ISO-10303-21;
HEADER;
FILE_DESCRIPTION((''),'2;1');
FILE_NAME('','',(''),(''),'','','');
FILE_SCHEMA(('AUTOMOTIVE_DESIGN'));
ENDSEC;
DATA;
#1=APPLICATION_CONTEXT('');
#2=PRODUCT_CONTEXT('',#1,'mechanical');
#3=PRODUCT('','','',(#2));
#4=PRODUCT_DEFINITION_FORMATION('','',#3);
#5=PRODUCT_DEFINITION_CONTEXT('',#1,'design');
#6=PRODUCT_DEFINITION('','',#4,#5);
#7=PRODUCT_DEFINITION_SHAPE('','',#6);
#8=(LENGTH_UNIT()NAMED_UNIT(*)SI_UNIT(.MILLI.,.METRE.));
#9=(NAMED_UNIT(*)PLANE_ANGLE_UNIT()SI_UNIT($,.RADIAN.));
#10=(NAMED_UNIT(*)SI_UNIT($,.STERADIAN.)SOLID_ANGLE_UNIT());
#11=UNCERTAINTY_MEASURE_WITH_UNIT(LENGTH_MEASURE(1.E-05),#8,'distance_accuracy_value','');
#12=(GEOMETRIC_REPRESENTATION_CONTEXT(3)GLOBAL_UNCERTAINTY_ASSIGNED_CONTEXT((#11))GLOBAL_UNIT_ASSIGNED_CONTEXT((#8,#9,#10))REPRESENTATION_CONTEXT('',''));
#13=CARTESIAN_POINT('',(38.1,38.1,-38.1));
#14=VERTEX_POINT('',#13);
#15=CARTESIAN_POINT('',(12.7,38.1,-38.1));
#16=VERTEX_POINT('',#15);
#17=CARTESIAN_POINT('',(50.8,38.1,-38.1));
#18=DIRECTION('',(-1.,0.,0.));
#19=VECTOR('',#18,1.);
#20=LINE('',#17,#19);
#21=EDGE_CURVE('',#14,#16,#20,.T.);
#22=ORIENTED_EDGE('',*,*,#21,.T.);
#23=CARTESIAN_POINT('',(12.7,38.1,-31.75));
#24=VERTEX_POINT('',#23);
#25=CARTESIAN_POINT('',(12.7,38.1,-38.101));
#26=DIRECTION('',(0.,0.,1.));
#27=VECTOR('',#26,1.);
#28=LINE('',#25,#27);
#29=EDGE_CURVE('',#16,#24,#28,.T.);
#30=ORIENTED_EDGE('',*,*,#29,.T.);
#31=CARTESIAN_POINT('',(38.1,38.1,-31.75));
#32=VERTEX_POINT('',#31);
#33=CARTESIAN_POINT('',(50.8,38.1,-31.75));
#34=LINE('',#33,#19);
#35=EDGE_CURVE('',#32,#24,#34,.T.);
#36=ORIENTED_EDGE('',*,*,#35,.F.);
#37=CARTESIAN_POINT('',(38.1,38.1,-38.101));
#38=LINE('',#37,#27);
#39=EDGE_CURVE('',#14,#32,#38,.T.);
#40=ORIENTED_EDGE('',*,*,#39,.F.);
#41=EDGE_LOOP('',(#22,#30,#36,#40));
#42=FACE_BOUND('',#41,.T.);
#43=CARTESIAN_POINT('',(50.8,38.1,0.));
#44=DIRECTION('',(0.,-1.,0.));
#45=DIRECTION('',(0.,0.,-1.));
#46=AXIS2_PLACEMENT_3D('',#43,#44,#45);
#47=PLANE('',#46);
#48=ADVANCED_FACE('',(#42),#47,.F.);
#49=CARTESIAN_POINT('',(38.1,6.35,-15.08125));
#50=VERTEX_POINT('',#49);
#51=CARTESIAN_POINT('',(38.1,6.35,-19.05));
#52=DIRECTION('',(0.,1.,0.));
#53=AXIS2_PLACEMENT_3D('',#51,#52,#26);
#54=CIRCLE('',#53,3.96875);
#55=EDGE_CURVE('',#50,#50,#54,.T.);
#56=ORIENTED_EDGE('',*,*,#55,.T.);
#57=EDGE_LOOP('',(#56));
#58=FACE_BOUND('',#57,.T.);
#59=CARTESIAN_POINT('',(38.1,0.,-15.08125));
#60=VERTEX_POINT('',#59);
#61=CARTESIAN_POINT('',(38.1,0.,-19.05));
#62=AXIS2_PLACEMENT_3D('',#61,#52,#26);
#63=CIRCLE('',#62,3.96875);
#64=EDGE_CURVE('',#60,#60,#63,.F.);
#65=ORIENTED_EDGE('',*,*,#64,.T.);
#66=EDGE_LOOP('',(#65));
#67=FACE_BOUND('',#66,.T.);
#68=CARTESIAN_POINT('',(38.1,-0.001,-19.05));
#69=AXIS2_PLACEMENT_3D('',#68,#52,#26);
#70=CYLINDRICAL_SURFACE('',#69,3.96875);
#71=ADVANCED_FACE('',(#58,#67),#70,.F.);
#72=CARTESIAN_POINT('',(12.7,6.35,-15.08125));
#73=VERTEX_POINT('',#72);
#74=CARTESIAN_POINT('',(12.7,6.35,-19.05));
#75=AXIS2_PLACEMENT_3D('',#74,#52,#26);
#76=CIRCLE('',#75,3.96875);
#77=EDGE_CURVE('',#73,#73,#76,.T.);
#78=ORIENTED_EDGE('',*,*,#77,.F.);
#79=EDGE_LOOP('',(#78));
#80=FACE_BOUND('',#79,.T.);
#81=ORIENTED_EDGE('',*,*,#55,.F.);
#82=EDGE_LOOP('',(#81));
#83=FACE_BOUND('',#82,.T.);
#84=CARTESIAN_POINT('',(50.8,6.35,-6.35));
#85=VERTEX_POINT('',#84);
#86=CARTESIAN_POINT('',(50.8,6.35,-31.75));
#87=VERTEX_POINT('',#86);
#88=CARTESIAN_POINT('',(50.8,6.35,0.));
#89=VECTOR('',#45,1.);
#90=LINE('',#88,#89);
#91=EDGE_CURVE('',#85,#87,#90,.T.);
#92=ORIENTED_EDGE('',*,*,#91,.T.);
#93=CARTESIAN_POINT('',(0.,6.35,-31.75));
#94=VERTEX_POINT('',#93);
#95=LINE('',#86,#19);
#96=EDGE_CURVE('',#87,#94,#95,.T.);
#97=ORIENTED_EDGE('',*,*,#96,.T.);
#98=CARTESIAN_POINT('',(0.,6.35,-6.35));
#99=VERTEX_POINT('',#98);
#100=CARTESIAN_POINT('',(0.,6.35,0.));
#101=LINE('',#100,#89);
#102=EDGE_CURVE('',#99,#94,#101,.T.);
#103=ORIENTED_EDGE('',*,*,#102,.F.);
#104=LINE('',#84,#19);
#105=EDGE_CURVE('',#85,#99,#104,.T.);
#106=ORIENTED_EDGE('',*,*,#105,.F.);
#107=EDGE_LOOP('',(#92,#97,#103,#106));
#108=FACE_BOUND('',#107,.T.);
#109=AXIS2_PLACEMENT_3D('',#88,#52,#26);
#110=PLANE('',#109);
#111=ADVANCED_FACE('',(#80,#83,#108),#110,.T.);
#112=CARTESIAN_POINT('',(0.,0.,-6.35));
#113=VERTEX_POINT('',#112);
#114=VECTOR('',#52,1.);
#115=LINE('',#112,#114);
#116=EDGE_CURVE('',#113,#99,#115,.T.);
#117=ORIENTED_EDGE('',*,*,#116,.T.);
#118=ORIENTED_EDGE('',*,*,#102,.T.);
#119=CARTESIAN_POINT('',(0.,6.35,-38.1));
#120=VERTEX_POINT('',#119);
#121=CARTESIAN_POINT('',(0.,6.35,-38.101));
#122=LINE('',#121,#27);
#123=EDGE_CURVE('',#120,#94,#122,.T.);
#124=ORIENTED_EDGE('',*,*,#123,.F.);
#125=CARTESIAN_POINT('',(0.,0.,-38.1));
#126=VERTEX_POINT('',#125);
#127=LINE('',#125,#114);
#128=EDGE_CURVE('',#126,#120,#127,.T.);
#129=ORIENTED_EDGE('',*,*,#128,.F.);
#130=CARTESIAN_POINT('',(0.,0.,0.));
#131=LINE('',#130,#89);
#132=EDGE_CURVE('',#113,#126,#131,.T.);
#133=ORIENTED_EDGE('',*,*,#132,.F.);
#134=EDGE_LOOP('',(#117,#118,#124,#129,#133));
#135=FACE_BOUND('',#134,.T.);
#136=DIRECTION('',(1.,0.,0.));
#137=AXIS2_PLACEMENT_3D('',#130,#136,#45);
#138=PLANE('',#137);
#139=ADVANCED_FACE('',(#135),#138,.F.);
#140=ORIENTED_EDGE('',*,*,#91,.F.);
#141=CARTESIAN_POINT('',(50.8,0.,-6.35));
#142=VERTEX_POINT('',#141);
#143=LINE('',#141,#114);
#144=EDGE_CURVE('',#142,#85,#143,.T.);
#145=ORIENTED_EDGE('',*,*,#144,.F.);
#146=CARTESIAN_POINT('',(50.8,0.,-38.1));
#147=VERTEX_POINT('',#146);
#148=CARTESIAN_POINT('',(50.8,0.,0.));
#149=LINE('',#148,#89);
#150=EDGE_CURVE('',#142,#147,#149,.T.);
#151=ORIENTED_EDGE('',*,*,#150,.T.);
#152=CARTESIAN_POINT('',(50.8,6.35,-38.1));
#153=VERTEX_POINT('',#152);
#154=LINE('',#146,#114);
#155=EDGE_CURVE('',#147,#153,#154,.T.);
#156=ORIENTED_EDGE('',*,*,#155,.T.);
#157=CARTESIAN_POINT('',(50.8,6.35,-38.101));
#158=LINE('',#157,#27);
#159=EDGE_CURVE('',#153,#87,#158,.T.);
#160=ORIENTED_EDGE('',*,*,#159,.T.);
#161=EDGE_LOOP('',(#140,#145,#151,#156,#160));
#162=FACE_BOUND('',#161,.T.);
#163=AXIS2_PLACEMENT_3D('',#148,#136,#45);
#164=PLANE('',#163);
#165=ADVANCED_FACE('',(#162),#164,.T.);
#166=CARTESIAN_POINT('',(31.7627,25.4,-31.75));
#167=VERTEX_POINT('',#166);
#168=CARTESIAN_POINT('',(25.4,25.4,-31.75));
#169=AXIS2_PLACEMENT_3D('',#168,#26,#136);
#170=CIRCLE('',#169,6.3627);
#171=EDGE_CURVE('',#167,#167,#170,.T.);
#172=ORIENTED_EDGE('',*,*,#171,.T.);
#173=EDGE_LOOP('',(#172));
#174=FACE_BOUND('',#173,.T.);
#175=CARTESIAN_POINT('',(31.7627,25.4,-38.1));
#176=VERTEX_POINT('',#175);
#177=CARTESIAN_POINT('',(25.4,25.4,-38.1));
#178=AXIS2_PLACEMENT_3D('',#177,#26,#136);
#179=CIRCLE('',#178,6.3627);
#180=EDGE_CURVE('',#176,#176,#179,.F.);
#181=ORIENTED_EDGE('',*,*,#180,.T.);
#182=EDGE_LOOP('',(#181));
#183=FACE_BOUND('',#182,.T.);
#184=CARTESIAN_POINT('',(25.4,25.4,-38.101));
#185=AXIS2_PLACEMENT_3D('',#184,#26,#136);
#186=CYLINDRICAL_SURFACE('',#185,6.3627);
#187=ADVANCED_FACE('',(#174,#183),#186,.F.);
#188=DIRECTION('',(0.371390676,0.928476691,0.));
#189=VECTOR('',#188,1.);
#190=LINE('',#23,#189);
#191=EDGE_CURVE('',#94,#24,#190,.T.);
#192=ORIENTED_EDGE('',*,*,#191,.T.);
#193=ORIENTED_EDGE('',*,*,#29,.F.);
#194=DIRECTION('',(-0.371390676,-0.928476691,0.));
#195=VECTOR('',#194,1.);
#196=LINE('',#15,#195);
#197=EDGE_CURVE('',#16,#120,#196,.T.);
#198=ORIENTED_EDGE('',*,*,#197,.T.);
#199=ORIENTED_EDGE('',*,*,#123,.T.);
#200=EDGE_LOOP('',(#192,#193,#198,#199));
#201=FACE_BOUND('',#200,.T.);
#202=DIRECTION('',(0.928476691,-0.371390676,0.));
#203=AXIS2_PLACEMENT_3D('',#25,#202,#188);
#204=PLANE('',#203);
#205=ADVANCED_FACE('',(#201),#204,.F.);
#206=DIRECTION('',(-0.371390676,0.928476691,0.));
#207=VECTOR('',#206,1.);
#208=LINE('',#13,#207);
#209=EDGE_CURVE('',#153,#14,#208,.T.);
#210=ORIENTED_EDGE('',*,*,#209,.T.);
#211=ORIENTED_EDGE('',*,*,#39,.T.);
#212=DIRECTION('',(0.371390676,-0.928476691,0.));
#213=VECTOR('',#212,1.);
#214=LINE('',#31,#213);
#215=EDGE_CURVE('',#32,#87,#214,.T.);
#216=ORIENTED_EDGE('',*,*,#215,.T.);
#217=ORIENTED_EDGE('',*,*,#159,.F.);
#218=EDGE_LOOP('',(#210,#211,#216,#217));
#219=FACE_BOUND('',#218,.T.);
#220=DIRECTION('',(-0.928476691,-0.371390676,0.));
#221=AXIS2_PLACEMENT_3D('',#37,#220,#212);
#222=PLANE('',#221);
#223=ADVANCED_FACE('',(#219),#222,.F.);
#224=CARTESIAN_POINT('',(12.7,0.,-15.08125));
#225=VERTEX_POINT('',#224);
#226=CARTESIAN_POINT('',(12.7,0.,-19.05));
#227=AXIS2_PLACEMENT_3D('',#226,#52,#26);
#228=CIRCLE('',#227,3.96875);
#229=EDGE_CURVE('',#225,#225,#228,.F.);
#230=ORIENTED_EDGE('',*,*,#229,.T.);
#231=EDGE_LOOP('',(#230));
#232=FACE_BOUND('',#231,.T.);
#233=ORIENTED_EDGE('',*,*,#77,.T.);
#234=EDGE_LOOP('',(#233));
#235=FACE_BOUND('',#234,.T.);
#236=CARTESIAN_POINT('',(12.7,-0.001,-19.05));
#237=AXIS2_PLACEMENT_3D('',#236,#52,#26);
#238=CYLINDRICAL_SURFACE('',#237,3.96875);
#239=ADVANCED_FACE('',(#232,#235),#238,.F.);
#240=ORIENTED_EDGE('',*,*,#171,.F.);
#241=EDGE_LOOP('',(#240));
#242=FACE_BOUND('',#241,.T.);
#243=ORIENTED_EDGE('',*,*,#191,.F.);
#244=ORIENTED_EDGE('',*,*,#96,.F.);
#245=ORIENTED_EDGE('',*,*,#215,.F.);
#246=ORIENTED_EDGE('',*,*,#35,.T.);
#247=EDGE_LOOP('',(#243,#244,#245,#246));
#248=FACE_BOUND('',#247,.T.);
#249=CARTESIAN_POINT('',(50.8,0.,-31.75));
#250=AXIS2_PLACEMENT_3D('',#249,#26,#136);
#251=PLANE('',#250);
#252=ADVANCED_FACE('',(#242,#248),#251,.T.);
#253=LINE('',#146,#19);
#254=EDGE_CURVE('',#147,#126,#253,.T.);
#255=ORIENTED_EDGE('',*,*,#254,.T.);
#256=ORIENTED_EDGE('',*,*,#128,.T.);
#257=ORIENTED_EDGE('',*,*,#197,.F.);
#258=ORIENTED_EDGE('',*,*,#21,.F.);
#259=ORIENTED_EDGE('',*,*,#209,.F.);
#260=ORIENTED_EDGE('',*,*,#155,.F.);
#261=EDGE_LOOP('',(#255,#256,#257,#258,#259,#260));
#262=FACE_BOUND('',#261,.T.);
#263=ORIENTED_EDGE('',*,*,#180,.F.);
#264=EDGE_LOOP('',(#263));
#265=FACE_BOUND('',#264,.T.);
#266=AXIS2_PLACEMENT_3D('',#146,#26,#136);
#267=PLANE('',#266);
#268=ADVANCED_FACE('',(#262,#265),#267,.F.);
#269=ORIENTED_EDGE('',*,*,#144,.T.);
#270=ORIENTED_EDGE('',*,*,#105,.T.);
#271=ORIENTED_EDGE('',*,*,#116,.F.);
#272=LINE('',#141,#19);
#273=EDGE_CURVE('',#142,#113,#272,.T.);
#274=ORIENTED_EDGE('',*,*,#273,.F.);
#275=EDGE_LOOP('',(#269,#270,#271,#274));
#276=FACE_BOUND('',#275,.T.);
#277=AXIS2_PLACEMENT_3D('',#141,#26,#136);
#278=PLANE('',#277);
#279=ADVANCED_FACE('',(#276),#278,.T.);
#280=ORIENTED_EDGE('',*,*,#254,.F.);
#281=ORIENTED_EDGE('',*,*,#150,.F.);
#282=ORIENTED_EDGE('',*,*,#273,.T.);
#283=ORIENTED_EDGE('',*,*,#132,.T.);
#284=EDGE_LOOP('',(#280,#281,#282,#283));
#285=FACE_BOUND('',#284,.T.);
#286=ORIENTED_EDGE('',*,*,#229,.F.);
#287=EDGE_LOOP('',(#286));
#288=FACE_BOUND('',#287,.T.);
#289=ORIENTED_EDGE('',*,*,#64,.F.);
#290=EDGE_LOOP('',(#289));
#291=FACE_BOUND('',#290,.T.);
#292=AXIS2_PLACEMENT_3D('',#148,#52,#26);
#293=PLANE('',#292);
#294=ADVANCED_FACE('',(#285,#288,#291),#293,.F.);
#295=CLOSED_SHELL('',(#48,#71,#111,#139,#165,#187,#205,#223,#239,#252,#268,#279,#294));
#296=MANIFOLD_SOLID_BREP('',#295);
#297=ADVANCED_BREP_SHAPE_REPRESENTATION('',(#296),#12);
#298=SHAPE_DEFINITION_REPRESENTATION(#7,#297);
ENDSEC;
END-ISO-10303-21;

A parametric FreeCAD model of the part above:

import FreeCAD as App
import Part
import Sketcher
from FreeCAD import Vector
Q = App.Units.Quantity

doc = App.newDocument("Part")
body = doc.addObject("PartDesign::Body", "Body")

# Sketch on YZ plane
sketch1 = doc.addObject("Sketcher::SketchObject", "Sketch")
body.addObject(sketch1)
sketch1.AttachmentSupport = (doc.YZ_Plane, [""])
sketch1.MapMode = "FlatFace"
sketch1.addGeometry([
    Part.LineSegment(Vector(6, -6, 0), Vector(0, -6, 0)),  # 0
    Part.LineSegment(Vector(0, -6, 0), Vector(0, -38, 0)),  # 1
    Part.LineSegment(Vector(0, -38, 0), Vector(38, -38, 0)),  # 2
    Part.LineSegment(Vector(38, -38, 0), Vector(38, -32, 0)),  # 3
    Part.LineSegment(Vector(38, -32, 0), Vector(6, -32, 0)),  # 4
    Part.LineSegment(Vector(6, -32, 0), Vector(6, -6, 0)),  # 5
], False)
sketch1.addConstraint([
    Sketcher.Constraint("Coincident", 0, 2, 1, 1),
    Sketcher.Constraint("Coincident", 1, 2, 2, 1),
    Sketcher.Constraint("Coincident", 2, 2, 3, 1),
    Sketcher.Constraint("Coincident", 3, 2, 4, 1),
    Sketcher.Constraint("Coincident", 4, 2, 5, 1),
    Sketcher.Constraint("Coincident", 5, 2, 0, 1),
    Sketcher.Constraint("Horizontal", 0),
    Sketcher.Constraint("Vertical", 1),
    Sketcher.Constraint("Horizontal", 2),
    Sketcher.Constraint("Vertical", 3),
    Sketcher.Constraint("Horizontal", 4),
    Sketcher.Constraint("Vertical", 5),
    Sketcher.Constraint("PointOnObject", 0, 2, -2),
    Sketcher.Constraint("Equal", 4, 1),
    Sketcher.Constraint("Equal", 0, 3),
    Sketcher.Constraint("DistanceY", 5, 1, 5, 2, Q("1 in")),
    Sketcher.Constraint("DistanceX", 2, 1, 2, 2, Q("1.5 in")),
    Sketcher.Constraint("DistanceY", 1, 2, -1, 1, Q("1.5 in")),
])
pad1 = doc.addObject("PartDesign::Pad", "Pad")
body.addObject(pad1)
pad1.Profile = sketch1
pad1.Length = Q("2 in")

# Sketch on XZ plane
sketch2 = doc.addObject("Sketcher::SketchObject", "Sketch001")
body.addObject(sketch2)
sketch2.AttachmentSupport = (doc.XZ_Plane, [""])
sketch2.MapMode = "FlatFace"
sketch2.AttachmentOffset = App.Placement(Vector(0, 0, -0.25 * 25.4), App.Rotation())
sketch2.addGeometry(Part.Circle(Vector(38.1, -19.1, 0), Vector(0, 0, 1), 4), False)
sketch2.addConstraint([
    Sketcher.Constraint("Diameter", 0, Q("0.3125 in")),
    Sketcher.Constraint("DistanceX", -1, 1, 0, 3, Q("1.5 in")),
    Sketcher.Constraint("DistanceY", 0, 3, -1, 1, Q("0.75 in")),
])
pocket1 = doc.addObject("PartDesign::Pocket", "Pocket")
body.addObject(pocket1)
pocket1.Profile = sketch2
pocket1.Type = "UpToFirst"
pocket1.Reversed = True

# Sketch on XZ plane
sketch3 = doc.addObject("Sketcher::SketchObject", "Sketch002")
body.addObject(sketch3)
sketch3.AttachmentSupport = (doc.XZ_Plane, [""])
sketch3.MapMode = "FlatFace"
sketch3.AttachmentOffset = App.Placement(Vector(0, 0, -0.25 * 25.4), App.Rotation())
sketch3.addGeometry(Part.Circle(Vector(12.7, -19.1, 0), Vector(0, 0, 1), 4), False)
sketch3.addConstraint([
    Sketcher.Constraint("Diameter", 0, Q("0.3125 in")),
    Sketcher.Constraint("DistanceX", -1, 1, 0, 3, Q("0.5 in")),
    Sketcher.Constraint("DistanceY", 0, 3, -1, 1, Q("0.75 in")),
])
pocket2 = doc.addObject("PartDesign::Pocket", "Pocket001")
body.addObject(pocket2)
pocket2.Profile = sketch3
pocket2.Type = "UpToFirst"
pocket2.Reversed = True

# Sketch on XY plane
sketch4 = doc.addObject("Sketcher::SketchObject", "Sketch003")
body.addObject(sketch4)
sketch4.AttachmentSupport = (doc.XY_Plane, [""])
sketch4.MapMode = "FlatFace"
sketch4.AttachmentOffset = App.Placement(Vector(0, 0, -1.25 * 25.4), App.Rotation())
sketch4.addGeometry(Part.Circle(Vector(25, 25, 0), Vector(0, 0, 1), 6), False)
sketch4.addConstraint([
    Sketcher.Constraint("Diameter", 0, Q("0.501 in")),
    Sketcher.Constraint("DistanceX", -1, 1, 0, 3, Q("1 in")),
    Sketcher.Constraint("DistanceY", -1, 1, 0, 3, Q("1 in")),
])
pocket3 = doc.addObject("PartDesign::Pocket", "Pocket002")
body.addObject(pocket3)
pocket3.Profile = sketch4
pocket3.Type = "UpToFirst"

# Sketch on XY plane
sketch5 = doc.addObject("Sketcher::SketchObject", "Sketch004")
body.addObject(sketch5)
sketch5.AttachmentSupport = (doc.XY_Plane, [""])
sketch5.MapMode = "FlatFace"
sketch5.AttachmentOffset = App.Placement(Vector(0, 0, -1.25 * 25.4), App.Rotation())
sketch5.addGeometry([
    Part.LineSegment(Vector(51, 6, 0), Vector(51, 38, 0)),
    Part.LineSegment(Vector(51, 38, 0), Vector(38, 38, 0)),
    Part.LineSegment(Vector(38, 38, 0), Vector(51, 6, 0)),
], False)
sketch5.addConstraint([
    Sketcher.Constraint("Coincident", 0, 2, 1, 1),
    Sketcher.Constraint("Coincident", 1, 2, 2, 1),
    Sketcher.Constraint("Coincident", 2, 2, 0, 1),
    Sketcher.Constraint("Vertical", 0),
    Sketcher.Constraint("Horizontal", 1),
    Sketcher.Constraint("DistanceX", 1, 2, 1, 1, Q("0.5 in")),
    Sketcher.Constraint("DistanceX", -1, 1, 0, 2, Q("2 in")),
    Sketcher.Constraint("DistanceY", 0, 1, 0, 2, Q("1.25 in")),
    Sketcher.Constraint("DistanceY", -1, 1, 0, 2, Q("1.5 in")),
])
pocket4 = doc.addObject("PartDesign::Pocket", "Pocket003")
body.addObject(pocket4)
pocket4.Profile = sketch5
pocket4.Type = "UpToFirst"

# Sketch on XY plane
sketch6 = doc.addObject("Sketcher::SketchObject", "Sketch005")
body.addObject(sketch6)
sketch6.AttachmentSupport = (doc.XY_Plane, [""])
sketch6.MapMode = "FlatFace"
sketch6.AttachmentOffset = App.Placement(Vector(0, 0, -1.25 * 25.4), App.Rotation())
sketch6.addGeometry([
    Part.LineSegment(Vector(0, 38, 0), Vector(0, 6, 0)),
    Part.LineSegment(Vector(0, 6, 0), Vector(13, 38, 0)),
    Part.LineSegment(Vector(13, 38, 0), Vector(0, 38, 0)),
], False)
sketch6.addConstraint([
    Sketcher.Constraint("Coincident", 0, 2, 1, 1),
    Sketcher.Constraint("Coincident", 1, 2, 2, 1),
    Sketcher.Constraint("Coincident", 2, 2, 0, 1),
    Sketcher.Constraint("Vertical", 0),
    Sketcher.Constraint("Horizontal", 2),
    Sketcher.Constraint("PointOnObject", 0, 2, -2),
    Sketcher.Constraint("DistanceX", 2, 2, 2, 1, Q("0.5 in")),
    Sketcher.Constraint("DistanceY", 0, 2, 0, 1, Q("1.25 in")),
    Sketcher.Constraint("DistanceY", -1, 1, 1, 2, Q("1.5 in")),
])
pocket5 = doc.addObject("PartDesign::Pocket", "Pocket004")
body.addObject(pocket5)
pocket5.Profile = sketch6
pocket5.Type = "UpToFirst"

doc.recompute()
